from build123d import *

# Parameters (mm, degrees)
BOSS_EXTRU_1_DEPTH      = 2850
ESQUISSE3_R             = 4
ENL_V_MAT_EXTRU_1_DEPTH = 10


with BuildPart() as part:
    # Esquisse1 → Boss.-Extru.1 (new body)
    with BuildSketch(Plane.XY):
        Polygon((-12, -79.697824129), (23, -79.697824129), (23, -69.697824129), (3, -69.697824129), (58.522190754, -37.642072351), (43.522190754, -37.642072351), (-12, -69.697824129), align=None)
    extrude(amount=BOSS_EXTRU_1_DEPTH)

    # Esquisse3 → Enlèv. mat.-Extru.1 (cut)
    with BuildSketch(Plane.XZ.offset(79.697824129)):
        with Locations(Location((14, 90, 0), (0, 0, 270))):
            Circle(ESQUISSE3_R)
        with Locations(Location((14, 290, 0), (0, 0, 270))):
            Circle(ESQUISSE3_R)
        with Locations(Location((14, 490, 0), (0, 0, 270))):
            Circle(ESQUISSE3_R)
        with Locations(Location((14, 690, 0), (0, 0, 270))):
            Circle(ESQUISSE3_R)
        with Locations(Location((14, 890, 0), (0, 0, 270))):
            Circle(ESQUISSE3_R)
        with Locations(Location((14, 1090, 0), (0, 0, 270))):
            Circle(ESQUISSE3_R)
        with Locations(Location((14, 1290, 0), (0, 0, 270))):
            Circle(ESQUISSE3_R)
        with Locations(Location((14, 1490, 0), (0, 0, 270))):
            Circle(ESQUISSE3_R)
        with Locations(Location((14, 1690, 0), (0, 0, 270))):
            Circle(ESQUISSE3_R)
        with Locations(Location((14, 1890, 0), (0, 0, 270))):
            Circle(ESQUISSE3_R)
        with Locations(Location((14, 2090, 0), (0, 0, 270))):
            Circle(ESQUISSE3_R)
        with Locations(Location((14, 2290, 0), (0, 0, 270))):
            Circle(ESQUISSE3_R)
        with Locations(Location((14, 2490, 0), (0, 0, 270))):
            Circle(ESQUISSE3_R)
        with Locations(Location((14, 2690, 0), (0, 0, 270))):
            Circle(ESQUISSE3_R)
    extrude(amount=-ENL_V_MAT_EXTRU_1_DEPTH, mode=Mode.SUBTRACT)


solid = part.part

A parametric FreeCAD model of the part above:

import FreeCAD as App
import Part
import Sketcher
Q = App.Units.Quantity


def add_polygon(sketch, points):
    """Adds a closed chain of lines whose ends are joined by coincident constraints."""
    first, n = sketch.GeometryCount, len(points)
    for a, b in zip(points, points[1:] + points[:1]):
        sketch.addGeometry(Part.LineSegment(App.Vector(*a, 0), App.Vector(*b, 0)), False)
    for i in range(n):
        sketch.addConstraint(Sketcher.Constraint("Coincident", first + i, 2, first + (i + 1) % n, 1))

doc = App.newDocument("Part")
params = doc.addObject("Spreadsheet::Sheet", "Params")
for row, (alias, value) in enumerate([
    ("sketch1_width", "35 mm"),
    ("sketch1_width2", "20 mm"),
    ("sketch1_height", "10 mm"),
    ("pad1_length", "2850 mm"),
    ("sketch2_diameter", "8 mm"),
    ("pocket1_length", "10 mm"),
], start=1):
    params.set(f"A{row}", alias)
    params.set(f"B{row}", "=" + value)
    params.setAlias(f"B{row}", alias)

body = doc.addObject("PartDesign::Body", "Body")

sketch1 = body.newObject("Sketcher::SketchObject", "Sketch")
sketch1.AttachmentSupport = (doc.getObject("XY_Plane"), [""])
sketch1.MapMode = "FlatFace"
add_polygon(sketch1, [(-12, -79.697824), (23, -79.697824), (23, -69.697824), (3, -69.697824), (58.522191, -37.642072), (43.522191, -37.642072), (-12, -69.697824)])
sketch1.addConstraint([
    Sketcher.Constraint("Horizontal", 0),
    Sketcher.Constraint("Vertical", 1),
    Sketcher.Constraint("Horizontal", 2),
    Sketcher.Constraint("Horizontal", 4),
    Sketcher.Constraint("Vertical", 6),
    Sketcher.Constraint("Parallel", 3, 5),
    Sketcher.Constraint("Horizontal", 2, 2, 5, 2),
    Sketcher.Constraint("DistanceX", 0, 1, 0, 2, Q("35 mm")),
    Sketcher.Constraint("DistanceX", 2, 2, 2, 1, Q("20 mm")),
    Sketcher.Constraint("DistanceY", 1, 1, 1, 2, Q("10 mm")),
    Sketcher.Constraint("Angle", 3, Q("30 deg")),
    Sketcher.Constraint("DistanceX", -1, 1, 0, 2, Q("23 mm")),
    Sketcher.Constraint("DistanceX", -1, 1, 3, 2, Q("58.522191 mm")),
    Sketcher.Constraint("DistanceY", 0, 2, -1, 1, Q("79.697824 mm")),
])
sketch1.setExpression("Constraints[14]", "Params.sketch1_width")
sketch1.setExpression("Constraints[15]", "Params.sketch1_width2")
sketch1.setExpression("Constraints[16]", "Params.sketch1_height")
pad1 = body.newObject("PartDesign::Pad", "Pad")
pad1.Profile = sketch1
pad1.setExpression("Length", "Params.pad1_length")

sketch2 = body.newObject("Sketcher::SketchObject", "Sketch001")
sketch2.AttachmentSupport = (doc.getObject("XZ_Plane"), [""])
sketch2.MapMode = "FlatFace"
sketch2.AttachmentOffset = App.Placement(App.Vector(0, 0, 79.697824), App.Rotation())
sketch2.addGeometry([
    Part.Circle(App.Vector(14, 90, 0), App.Vector(0, 0, 1), 4),
    Part.Circle(App.Vector(14, 290, 0), App.Vector(0, 0, 1), 4),
    Part.Circle(App.Vector(14, 490, 0), App.Vector(0, 0, 1), 4),
    Part.Circle(App.Vector(14, 690, 0), App.Vector(0, 0, 1), 4),
    Part.Circle(App.Vector(14, 890, 0), App.Vector(0, 0, 1), 4),
    Part.Circle(App.Vector(14, 1090, 0), App.Vector(0, 0, 1), 4),
    Part.Circle(App.Vector(14, 1290, 0), App.Vector(0, 0, 1), 4),
    Part.Circle(App.Vector(14, 1490, 0), App.Vector(0, 0, 1), 4),
    Part.Circle(App.Vector(14, 1690, 0), App.Vector(0, 0, 1), 4),
    Part.Circle(App.Vector(14, 1890, 0), App.Vector(0, 0, 1), 4),
    Part.Circle(App.Vector(14, 2090, 0), App.Vector(0, 0, 1), 4),
    Part.Circle(App.Vector(14, 2290, 0), App.Vector(0, 0, 1), 4),
    Part.Circle(App.Vector(14, 2490, 0), App.Vector(0, 0, 1), 4),
    Part.Circle(App.Vector(14, 2690, 0), App.Vector(0, 0, 1), 4),
], False)
sketch2.addConstraint([
    Sketcher.Constraint("Equal", 0, 1),
    Sketcher.Constraint("Equal", 1, 2),
    Sketcher.Constraint("Equal", 2, 3),
    Sketcher.Constraint("Equal", 3, 4),
    Sketcher.Constraint("Equal", 4, 5),
    Sketcher.Constraint("Equal", 5, 6),
    Sketcher.Constraint("Equal", 6, 7),
    Sketcher.Constraint("Equal", 7, 8),
    Sketcher.Constraint("Equal", 8, 9),
    Sketcher.Constraint("Equal", 9, 10),
    Sketcher.Constraint("Equal", 10, 11),
    Sketcher.Constraint("Equal", 11, 12),
    Sketcher.Constraint("Equal", 12, 13),
    Sketcher.Constraint("Vertical", 0, 3, 1, 3),
    Sketcher.Constraint("Vertical", 1, 3, 2, 3),
    Sketcher.Constraint("Vertical", 2, 3, 3, 3),
    Sketcher.Constraint("Vertical", 3, 3, 4, 3),
    Sketcher.Constraint("Vertical", 4, 3, 5, 3),
    Sketcher.Constraint("Vertical", 5, 3, 6, 3),
    Sketcher.Constraint("Vertical", 6, 3, 7, 3),
    Sketcher.Constraint("Vertical", 7, 3, 8, 3),
    Sketcher.Constraint("Vertical", 8, 3, 9, 3),
    Sketcher.Constraint("Vertical", 9, 3, 10, 3),
    Sketcher.Constraint("Vertical", 10, 3, 11, 3),
    Sketcher.Constraint("Vertical", 11, 3, 12, 3),
    Sketcher.Constraint("Vertical", 12, 3, 13, 3),
    Sketcher.Constraint("Diameter", 0, Q("8 mm")),
    Sketcher.Constraint("DistanceX", -1, 1, 0, 3, Q("14 mm")),
    Sketcher.Constraint("DistanceY", -1, 1, 0, 3, Q("90 mm")),
    Sketcher.Constraint("DistanceY", -1, 1, 1, 3, Q("290 mm")),
    Sketcher.Constraint("DistanceY", -1, 1, 2, 3, Q("490 mm")),
    Sketcher.Constraint("DistanceY", -1, 1, 3, 3, Q("690 mm")),
    Sketcher.Constraint("DistanceY", -1, 1, 4, 3, Q("890 mm")),
    Sketcher.Constraint("DistanceY", -1, 1, 5, 3, Q("1090 mm")),
    Sketcher.Constraint("DistanceY", -1, 1, 6, 3, Q("1290 mm")),
    Sketcher.Constraint("DistanceY", -1, 1, 7, 3, Q("1490 mm")),
    Sketcher.Constraint("DistanceY", -1, 1, 8, 3, Q("1690 mm")),
    Sketcher.Constraint("DistanceY", -1, 1, 9, 3, Q("1890 mm")),
    Sketcher.Constraint("DistanceY", -1, 1, 10, 3, Q("2090 mm")),
    Sketcher.Constraint("DistanceY", -1, 1, 11, 3, Q("2290 mm")),
    Sketcher.Constraint("DistanceY", -1, 1, 12, 3, Q("2490 mm")),
    Sketcher.Constraint("DistanceY", -1, 1, 13, 3, Q("2690 mm")),
])
sketch2.setExpression("Constraints[26]", "Params.sketch2_diameter")
pocket1 = body.newObject("PartDesign::Pocket", "Pocket")
pocket1.Profile = sketch2
pocket1.setExpression("Length", "Params.pocket1_length")

doc.recompute()
